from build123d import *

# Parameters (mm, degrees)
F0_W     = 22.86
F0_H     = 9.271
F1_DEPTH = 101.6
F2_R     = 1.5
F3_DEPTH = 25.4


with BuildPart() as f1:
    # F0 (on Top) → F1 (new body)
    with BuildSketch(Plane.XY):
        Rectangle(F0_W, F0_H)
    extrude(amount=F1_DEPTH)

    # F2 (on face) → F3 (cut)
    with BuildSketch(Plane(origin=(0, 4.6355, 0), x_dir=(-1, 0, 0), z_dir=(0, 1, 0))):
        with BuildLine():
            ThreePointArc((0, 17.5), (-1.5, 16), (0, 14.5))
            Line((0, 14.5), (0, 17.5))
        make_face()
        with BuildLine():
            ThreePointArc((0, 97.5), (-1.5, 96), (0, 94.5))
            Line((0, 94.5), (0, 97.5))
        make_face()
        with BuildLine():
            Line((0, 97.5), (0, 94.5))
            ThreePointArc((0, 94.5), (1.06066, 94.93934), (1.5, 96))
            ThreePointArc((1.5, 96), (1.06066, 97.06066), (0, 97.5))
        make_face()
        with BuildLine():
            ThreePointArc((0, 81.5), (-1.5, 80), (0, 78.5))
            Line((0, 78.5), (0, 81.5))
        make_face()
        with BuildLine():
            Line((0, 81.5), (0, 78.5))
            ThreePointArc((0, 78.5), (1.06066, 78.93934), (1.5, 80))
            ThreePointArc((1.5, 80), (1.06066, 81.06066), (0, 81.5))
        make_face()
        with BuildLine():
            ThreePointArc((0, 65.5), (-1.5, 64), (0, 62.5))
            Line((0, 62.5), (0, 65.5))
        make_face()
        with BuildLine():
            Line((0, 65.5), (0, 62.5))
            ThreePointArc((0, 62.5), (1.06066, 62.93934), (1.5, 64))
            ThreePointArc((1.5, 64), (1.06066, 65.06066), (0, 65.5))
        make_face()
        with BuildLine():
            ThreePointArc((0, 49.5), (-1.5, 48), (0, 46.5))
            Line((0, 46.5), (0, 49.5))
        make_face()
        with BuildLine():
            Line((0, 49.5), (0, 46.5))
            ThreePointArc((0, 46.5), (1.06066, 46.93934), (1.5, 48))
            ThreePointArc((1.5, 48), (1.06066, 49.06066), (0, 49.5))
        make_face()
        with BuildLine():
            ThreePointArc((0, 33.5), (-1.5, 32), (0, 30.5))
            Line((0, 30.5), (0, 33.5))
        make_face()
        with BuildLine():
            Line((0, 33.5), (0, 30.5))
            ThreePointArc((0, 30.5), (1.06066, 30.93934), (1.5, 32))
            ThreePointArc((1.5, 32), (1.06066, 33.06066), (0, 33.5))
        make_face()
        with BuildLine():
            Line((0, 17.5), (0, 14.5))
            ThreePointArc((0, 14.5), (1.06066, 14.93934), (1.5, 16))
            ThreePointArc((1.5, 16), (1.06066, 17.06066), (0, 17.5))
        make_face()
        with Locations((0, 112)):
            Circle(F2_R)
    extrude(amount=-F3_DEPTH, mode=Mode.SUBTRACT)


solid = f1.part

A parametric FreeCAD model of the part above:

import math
import FreeCAD as App
import Part
import Sketcher

V = App.Vector
Q = App.Units.Quantity

doc = App.newDocument("Part")
body = doc.addObject("PartDesign::Body", "Body")

sketch1 = doc.addObject("Sketcher::SketchObject", "Sketch")
body.addObject(sketch1)
sketch1.AttachmentSupport = (doc.XY_Plane, [""])
sketch1.MapMode = "FlatFace"
sketch1.addGeometry(Part.LineSegment(V(-11, 5, 0), V(-11, -5, 0)), False)
sketch1.addGeometry(Part.LineSegment(V(-11, -5, 0), V(11, -5, 0)), False)
sketch1.addGeometry(Part.LineSegment(V(11, -5, 0), V(11, 5, 0)), False)
sketch1.addGeometry(Part.LineSegment(V(11, 5, 0), V(-11, 5, 0)), False)
sketch1.addConstraint(Sketcher.Constraint("Coincident", 0, 2, 1, 1))
sketch1.addConstraint(Sketcher.Constraint("Coincident", 1, 2, 2, 1))
sketch1.addConstraint(Sketcher.Constraint("Coincident", 2, 2, 3, 1))
sketch1.addConstraint(Sketcher.Constraint("Coincident", 3, 2, 0, 1))
sketch1.addConstraint(Sketcher.Constraint("Vertical", 0))
sketch1.addConstraint(Sketcher.Constraint("Horizontal", 1))
sketch1.addConstraint(Sketcher.Constraint("Vertical", 2))
sketch1.addConstraint(Sketcher.Constraint("Horizontal", 3))
sketch1.addConstraint(Sketcher.Constraint("Symmetric", 0, 2, 2, 2, -1, 1))
sketch1.addConstraint(Sketcher.Constraint("DistanceX", 1, 1, 1, 2, Q("0.9 in")))
sketch1.addConstraint(Sketcher.Constraint("DistanceY", 0, 2, 0, 1, Q("0.365 in")))
pad1 = doc.addObject("PartDesign::Pad", "Pad")
body.addObject(pad1)
pad1.Profile = sketch1
pad1.Length = Q("4 in")

sketch2 = doc.addObject("Sketcher::SketchObject", "Sketch001")
body.addObject(sketch2)
sketch2.AttachmentSupport = (doc.XZ_Plane, [""])
sketch2.MapMode = "FlatFace"
sketch2.AttachmentOffset = App.Placement(V(0, 0, -0.1825 * 25.4), App.Rotation())
sketch2.addGeometry(Part.ArcOfCircle(Part.Circle(V(0, 16, 0), V(0, 0, 1), 1.5), math.radians(-90), math.radians(90)), False)
sketch2.addGeometry(Part.ArcOfCircle(Part.Circle(V(0, 16, 0), V(0, 0, 1), 1.5), math.radians(-180), math.radians(-90)), False)
sketch2.addGeometry(Part.ArcOfCircle(Part.Circle(V(0, 16, 0), V(0, 0, 1), 1.5), math.radians(90), math.radians(180)), False)
sketch2.addGeometry(Part.ArcOfCircle(Part.Circle(V(0, 96, 0), V(0, 0, 1), 1.5), math.radians(-90), math.radians(90)), False)
sketch2.addGeometry(Part.ArcOfCircle(Part.Circle(V(0, 96, 0), V(0, 0, 1), 1.5), math.radians(-180), math.radians(-90)), False)
sketch2.addGeometry(Part.ArcOfCircle(Part.Circle(V(0, 96, 0), V(0, 0, 1), 1.5), math.radians(90), math.radians(180)), False)
sketch2.addGeometry(Part.ArcOfCircle(Part.Circle(V(0, 80, 0), V(0, 0, 1), 1.5), math.radians(-90), math.radians(90)), False)
sketch2.addGeometry(Part.ArcOfCircle(Part.Circle(V(0, 80, 0), V(0, 0, 1), 1.5), math.radians(-180), math.radians(-90)), False)
sketch2.addGeometry(Part.ArcOfCircle(Part.Circle(V(0, 80, 0), V(0, 0, 1), 1.5), math.radians(90), math.radians(180)), False)
sketch2.addGeometry(Part.ArcOfCircle(Part.Circle(V(0, 64, 0), V(0, 0, 1), 1.5), math.radians(-90), math.radians(90)), False)
sketch2.addGeometry(Part.ArcOfCircle(Part.Circle(V(0, 64, 0), V(0, 0, 1), 1.5), math.radians(-180), math.radians(-90)), False)
sketch2.addGeometry(Part.ArcOfCircle(Part.Circle(V(0, 64, 0), V(0, 0, 1), 1.5), math.radians(90), math.radians(180)), False)
sketch2.addGeometry(Part.ArcOfCircle(Part.Circle(V(0, 48, 0), V(0, 0, 1), 1.5), math.radians(-90), math.radians(90)), False)
sketch2.addGeometry(Part.ArcOfCircle(Part.Circle(V(0, 48, 0), V(0, 0, 1), 1.5), math.radians(-180), math.radians(-90)), False)
sketch2.addGeometry(Part.ArcOfCircle(Part.Circle(V(0, 48, 0), V(0, 0, 1), 1.5), math.radians(90), math.radians(180)), False)
sketch2.addGeometry(Part.ArcOfCircle(Part.Circle(V(0, 32, 0), V(0, 0, 1), 1.5), math.radians(-90), math.radians(90)), False)
sketch2.addGeometry(Part.ArcOfCircle(Part.Circle(V(0, 32, 0), V(0, 0, 1), 1.5), math.radians(-180), math.radians(-90)), False)
sketch2.addGeometry(Part.ArcOfCircle(Part.Circle(V(0, 32, 0), V(0, 0, 1), 1.5), math.radians(90), math.radians(180)), False)
sketch2.addGeometry(Part.Circle(V(0, 112, 0), V(0, 0, 1), 1.5), False)
sketch2.addConstraint(Sketcher.Constraint("Tangent", 0, 1, 1, 2))
sketch2.addConstraint(Sketcher.Constraint("Tangent", 1, 1, 2, 2))
sketch2.addConstraint(Sketcher.Constraint("Tangent", 2, 1, 0, 2))
sketch2.addConstraint(Sketcher.Constraint("Tangent", 3, 1, 4, 2))
sketch2.addConstraint(Sketcher.Constraint("Tangent", 4, 1, 5, 2))
sketch2.addConstraint(Sketcher.Constraint("Tangent", 5, 1, 3, 2))
sketch2.addConstraint(Sketcher.Constraint("Tangent", 6, 1, 7, 2))
sketch2.addConstraint(Sketcher.Constraint("Tangent", 7, 1, 8, 2))
sketch2.addConstraint(Sketcher.Constraint("Tangent", 8, 1, 6, 2))
sketch2.addConstraint(Sketcher.Constraint("Tangent", 9, 1, 10, 2))
sketch2.addConstraint(Sketcher.Constraint("Tangent", 10, 1, 11, 2))
sketch2.addConstraint(Sketcher.Constraint("Tangent", 11, 1, 9, 2))
sketch2.addConstraint(Sketcher.Constraint("Tangent", 12, 1, 13, 2))
sketch2.addConstraint(Sketcher.Constraint("Tangent", 13, 1, 14, 2))
sketch2.addConstraint(Sketcher.Constraint("Tangent", 14, 1, 12, 2))
sketch2.addConstraint(Sketcher.Constraint("Tangent", 15, 1, 16, 2))
sketch2.addConstraint(Sketcher.Constraint("Tangent", 16, 1, 17, 2))
sketch2.addConstraint(Sketcher.Constraint("Tangent", 17, 1, 15, 2))
sketch2.addConstraint(Sketcher.Constraint("Equal", 2, 3))
sketch2.addConstraint(Sketcher.Constraint("Equal", 5, 6))
sketch2.addConstraint(Sketcher.Constraint("Equal", 8, 9))
sketch2.addConstraint(Sketcher.Constraint("Equal", 11, 12))
sketch2.addConstraint(Sketcher.Constraint("Equal", 14, 15))
sketch2.addConstraint(Sketcher.Constraint("Equal", 17, 18))
sketch2.addConstraint(Sketcher.Constraint("PointOnObject", 0, 3, -2))
sketch2.addConstraint(Sketcher.Constraint("PointOnObject", 3, 3, -2))
sketch2.addConstraint(Sketcher.Constraint("PointOnObject", 6, 3, -2))
sketch2.addConstraint(Sketcher.Constraint("PointOnObject", 9, 3, -2))
sketch2.addConstraint(Sketcher.Constraint("PointOnObject", 12, 3, -2))
sketch2.addConstraint(Sketcher.Constraint("PointOnObject", 15, 3, -2))
sketch2.addConstraint(Sketcher.Constraint("PointOnObject", 18, 3, -2))
sketch2.addConstraint(Sketcher.Constraint("PointOnObject", 0, 1, -2))
sketch2.addConstraint(Sketcher.Constraint("PointOnObject", 2, 1, -2))
sketch2.addConstraint(Sketcher.Constraint("PointOnObject", 3, 1, -2))
sketch2.addConstraint(Sketcher.Constraint("PointOnObject", 5, 1, -2))
sketch2.addConstraint(Sketcher.Constraint("PointOnObject", 6, 1, -2))
sketch2.addConstraint(Sketcher.Constraint("PointOnObject", 8, 1, -2))
sketch2.addConstraint(Sketcher.Constraint("PointOnObject", 9, 1, -2))
sketch2.addConstraint(Sketcher.Constraint("PointOnObject", 11, 1, -2))
sketch2.addConstraint(Sketcher.Constraint("PointOnObject", 12, 1, -2))
sketch2.addConstraint(Sketcher.Constraint("PointOnObject", 14, 1, -2))
sketch2.addConstraint(Sketcher.Constraint("PointOnObject", 15, 1, -2))
sketch2.addConstraint(Sketcher.Constraint("PointOnObject", 17, 1, -2))
sketch2.addConstraint(Sketcher.Constraint("Horizontal", 2, 3, 1, 1))
sketch2.addConstraint(Sketcher.Constraint("Horizontal", 5, 3, 4, 1))
sketch2.addConstraint(Sketcher.Constraint("Horizontal", 8, 3, 7, 1))
sketch2.addConstraint(Sketcher.Constraint("Horizontal", 11, 3, 10, 1))
sketch2.addConstraint(Sketcher.Constraint("Horizontal", 14, 3, 13, 1))
sketch2.addConstraint(Sketcher.Constraint("Horizontal", 17, 3, 16, 1))
sketch2.addConstraint(Sketcher.Constraint("Diameter", 18, 3.0))
sketch2.addConstraint(Sketcher.Constraint("DistanceY", -1, 1, 0, 3, 16.0))
sketch2.addConstraint(Sketcher.Constraint("DistanceY", -1, 1, 3, 3, 96.0))
sketch2.addConstraint(Sketcher.Constraint("DistanceY", -1, 1, 6, 3, 80.0))
sketch2.addConstraint(Sketcher.Constraint("DistanceY", -1, 1, 9, 3, 64.0))
sketch2.addConstraint(Sketcher.Constraint("DistanceY", -1, 1, 12, 3, 48.0))
sketch2.addConstraint(Sketcher.Constraint("DistanceY", -1, 1, 15, 3, 32.0))
sketch2.addConstraint(Sketcher.Constraint("DistanceY", -1, 1, 18, 3, 112.0))
pocket1 = doc.addObject("PartDesign::Pocket", "Pocket")
body.addObject(pocket1)
pocket1.Profile = sketch2
pocket1.Length = Q("1 in")
pocket1.Reversed = True

doc.recompute()
